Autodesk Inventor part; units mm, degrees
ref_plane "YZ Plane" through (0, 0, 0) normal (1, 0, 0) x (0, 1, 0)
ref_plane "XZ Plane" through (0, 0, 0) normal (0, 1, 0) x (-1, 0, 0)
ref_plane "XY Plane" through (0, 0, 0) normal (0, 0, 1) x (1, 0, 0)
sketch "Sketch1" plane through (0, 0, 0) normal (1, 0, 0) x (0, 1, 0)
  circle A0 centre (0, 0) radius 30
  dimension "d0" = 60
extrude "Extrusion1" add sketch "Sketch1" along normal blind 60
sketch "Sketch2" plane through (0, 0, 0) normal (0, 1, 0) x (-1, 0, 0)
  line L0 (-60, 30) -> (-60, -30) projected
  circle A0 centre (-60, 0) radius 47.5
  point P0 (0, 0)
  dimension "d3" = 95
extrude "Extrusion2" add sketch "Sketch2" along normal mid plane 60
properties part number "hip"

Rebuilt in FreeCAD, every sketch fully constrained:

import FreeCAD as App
import Part
import Sketcher
from FreeCAD import Vector

doc = App.newDocument("Part")
params = doc.addObject("Spreadsheet::Sheet", "Params")
for row, (alias, value) in enumerate([
    ("sketch1_diameter", "60 mm"),
    ("pad1_length", "60 mm"),
    ("sketch2_diameter", "95 mm"),
    ("pad2_length", "60 mm"),
], start=1):
    params.set(f"A{row}", alias)
    params.set(f"B{row}", "=" + value)
    params.setAlias(f"B{row}", alias)

body = doc.addObject("PartDesign::Body", "Body")

# Sketch on YZ plane
sketch1 = doc.addObject("Sketcher::SketchObject", "Sketch")
body.addObject(sketch1)
sketch1.AttachmentSupport = (doc.YZ_Plane, [""])
sketch1.MapMode = "FlatFace"
sketch1.addGeometry(Part.Circle(Vector(0, 0, 0), Vector(0, 0, 1), 30), False)
sketch1.addConstraint([
    Sketcher.Constraint("Coincident", 0, 3, -1, 1),
    Sketcher.Constraint("Diameter", 0, 60.0),
])
sketch1.setExpression("Constraints[1]", "Params.sketch1_diameter")
pad1 = doc.addObject("PartDesign::Pad", "Pad")
body.addObject(pad1)
pad1.Profile = sketch1
pad1.setExpression("Length", "Params.pad1_length")

# Sketch on XZ plane
sketch2 = doc.addObject("Sketcher::SketchObject", "Sketch001")
body.addObject(sketch2)
sketch2.AttachmentSupport = (doc.XZ_Plane, [""])
sketch2.MapMode = "FlatFace"
sketch2.addGeometry(Part.Circle(Vector(60, 0, 0), Vector(0, 0, 1), 47.5), False)
sketch2.addConstraint([
    Sketcher.Constraint("PointOnObject", 0, 3, -1),
    Sketcher.Constraint("Diameter", 0, 95.0),
    Sketcher.Constraint("DistanceX", -1, 1, 0, 3, 60.0),
])
sketch2.setExpression("Constraints[1]", "Params.sketch2_diameter")
pad2 = doc.addObject("PartDesign::Pad", "Pad001")
body.addObject(pad2)
pad2.Profile = sketch2
pad2.setExpression("Length", "Params.pad2_length")
pad2.Midplane = True

doc.recompute()
